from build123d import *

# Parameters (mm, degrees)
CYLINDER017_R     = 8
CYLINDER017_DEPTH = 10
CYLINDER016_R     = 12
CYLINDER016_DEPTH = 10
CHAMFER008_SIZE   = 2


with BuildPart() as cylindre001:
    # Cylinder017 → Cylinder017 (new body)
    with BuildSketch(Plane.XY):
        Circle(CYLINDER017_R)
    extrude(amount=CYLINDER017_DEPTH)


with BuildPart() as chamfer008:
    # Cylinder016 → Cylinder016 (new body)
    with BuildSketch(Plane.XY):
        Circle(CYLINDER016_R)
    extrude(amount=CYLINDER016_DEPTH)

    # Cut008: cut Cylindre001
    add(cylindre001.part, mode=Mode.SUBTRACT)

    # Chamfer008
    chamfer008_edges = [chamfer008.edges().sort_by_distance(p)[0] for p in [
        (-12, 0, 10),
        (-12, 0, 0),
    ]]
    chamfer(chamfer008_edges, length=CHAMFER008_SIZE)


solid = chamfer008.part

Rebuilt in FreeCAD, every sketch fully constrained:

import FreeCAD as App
import Part
import Sketcher
from FreeCAD import Vector


def edges_at(feature, points):
    """Names of the edges that pass closest to the given points."""
    edges = feature.Shape.Edges
    near = lambda p: min(range(len(edges)), key=lambda i: edges[i].distToShape(Part.Vertex(*p))[0])
    return sorted({f"Edge{near(p) + 1}" for p in points})

doc = App.newDocument("Part")
body = doc.addObject("PartDesign::Body", "Body")

sketch1 = doc.addObject("Sketcher::SketchObject", "Sketch")
body.addObject(sketch1)
sketch1.AttachmentSupport = (doc.XY_Plane, [""])
sketch1.MapMode = "FlatFace"
sketch1.addGeometry(Part.Circle(Vector(0, 0, 0), Vector(0, 0, 1), 8), False)
sketch1.addConstraint([
    Sketcher.Constraint("Coincident", 0, 3, -1, 1),
    Sketcher.Constraint("Diameter", 0, 16.0),
])
pad1 = doc.addObject("PartDesign::Pad", "Pad")
body.addObject(pad1)
pad1.Profile = sketch1
pad1.Length = 10
body2 = doc.addObject("PartDesign::Body", "Body001")

sketch2 = doc.addObject("Sketcher::SketchObject", "Sketch001")
body2.addObject(sketch2)
sketch2.AttachmentSupport = (doc.getObject("XY_Plane001"), [""])
sketch2.MapMode = "FlatFace"
sketch2.addGeometry(Part.Circle(Vector(0, 0, 0), Vector(0, 0, 1), 12), False)
sketch2.addConstraint([
    Sketcher.Constraint("Coincident", 0, 3, -1, 1),
    Sketcher.Constraint("Diameter", 0, 24.0),
])
pad2 = doc.addObject("PartDesign::Pad", "Pad001")
body2.addObject(pad2)
pad2.Profile = sketch2
pad2.Length = 10
doc.recompute()

boolean = doc.addObject("PartDesign::Boolean", "Boolean")
body2.addObject(boolean)
boolean.Type = "Cut"
boolean.addObjects([body])
doc.recompute()

chamfer = doc.addObject("PartDesign::Chamfer", "Chamfer")
body2.addObject(chamfer)
chamfer.Base = (boolean, edges_at(boolean, [(-12, 0, 10), (-12, 0, 0)]))
chamfer.Size = 2

doc.recompute()
